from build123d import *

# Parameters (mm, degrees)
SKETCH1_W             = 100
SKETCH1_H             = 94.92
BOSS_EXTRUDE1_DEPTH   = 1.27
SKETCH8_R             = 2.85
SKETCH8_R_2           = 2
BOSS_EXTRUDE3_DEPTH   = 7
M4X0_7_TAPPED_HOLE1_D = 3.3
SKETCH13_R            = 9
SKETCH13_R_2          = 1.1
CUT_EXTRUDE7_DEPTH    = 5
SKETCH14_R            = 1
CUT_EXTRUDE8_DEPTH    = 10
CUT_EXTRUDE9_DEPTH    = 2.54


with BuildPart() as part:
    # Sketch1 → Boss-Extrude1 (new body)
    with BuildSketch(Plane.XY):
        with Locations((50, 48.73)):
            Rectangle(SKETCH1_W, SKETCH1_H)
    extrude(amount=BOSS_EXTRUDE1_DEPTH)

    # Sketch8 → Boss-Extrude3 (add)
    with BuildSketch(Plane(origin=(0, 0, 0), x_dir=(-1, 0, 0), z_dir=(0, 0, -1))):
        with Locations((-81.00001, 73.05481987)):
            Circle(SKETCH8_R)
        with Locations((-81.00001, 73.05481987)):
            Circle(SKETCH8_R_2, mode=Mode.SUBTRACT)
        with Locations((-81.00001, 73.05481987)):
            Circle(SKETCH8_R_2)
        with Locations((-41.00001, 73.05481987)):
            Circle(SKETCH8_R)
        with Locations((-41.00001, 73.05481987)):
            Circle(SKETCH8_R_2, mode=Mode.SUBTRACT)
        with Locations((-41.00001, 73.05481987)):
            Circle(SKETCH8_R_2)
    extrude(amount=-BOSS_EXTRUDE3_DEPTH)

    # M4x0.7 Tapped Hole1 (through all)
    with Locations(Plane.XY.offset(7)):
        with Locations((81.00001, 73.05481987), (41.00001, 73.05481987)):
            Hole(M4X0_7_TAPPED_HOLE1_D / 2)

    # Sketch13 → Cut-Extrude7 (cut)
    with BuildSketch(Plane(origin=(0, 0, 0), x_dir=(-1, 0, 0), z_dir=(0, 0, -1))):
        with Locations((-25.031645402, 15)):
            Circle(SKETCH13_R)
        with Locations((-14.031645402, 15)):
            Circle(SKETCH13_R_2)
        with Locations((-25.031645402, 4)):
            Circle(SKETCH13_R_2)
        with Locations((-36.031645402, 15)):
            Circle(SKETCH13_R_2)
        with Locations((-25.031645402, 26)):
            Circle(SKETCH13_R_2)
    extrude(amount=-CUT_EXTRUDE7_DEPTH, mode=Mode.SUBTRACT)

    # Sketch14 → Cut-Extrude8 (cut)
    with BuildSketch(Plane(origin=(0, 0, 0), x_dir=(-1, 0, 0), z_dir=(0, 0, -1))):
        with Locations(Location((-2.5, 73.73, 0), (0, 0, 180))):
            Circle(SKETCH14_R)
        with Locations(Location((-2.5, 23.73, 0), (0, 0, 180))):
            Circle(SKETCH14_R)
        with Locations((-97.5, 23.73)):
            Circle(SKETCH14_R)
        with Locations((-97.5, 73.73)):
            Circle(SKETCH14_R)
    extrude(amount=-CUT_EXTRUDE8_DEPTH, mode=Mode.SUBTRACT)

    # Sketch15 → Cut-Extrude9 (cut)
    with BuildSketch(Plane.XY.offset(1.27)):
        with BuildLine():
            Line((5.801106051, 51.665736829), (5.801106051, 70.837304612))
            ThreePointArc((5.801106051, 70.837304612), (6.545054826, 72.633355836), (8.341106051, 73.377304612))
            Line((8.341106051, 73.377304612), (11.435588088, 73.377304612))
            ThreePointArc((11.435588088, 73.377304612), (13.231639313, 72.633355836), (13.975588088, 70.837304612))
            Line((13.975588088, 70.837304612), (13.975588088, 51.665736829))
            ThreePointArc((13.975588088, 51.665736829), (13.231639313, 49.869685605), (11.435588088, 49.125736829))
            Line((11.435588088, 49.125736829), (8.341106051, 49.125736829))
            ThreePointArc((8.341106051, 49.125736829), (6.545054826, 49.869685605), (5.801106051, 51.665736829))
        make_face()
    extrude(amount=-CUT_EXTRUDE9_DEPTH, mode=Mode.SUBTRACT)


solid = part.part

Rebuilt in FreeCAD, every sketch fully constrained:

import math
import FreeCAD as App
import Part
import Sketcher
Q = App.Units.Quantity

doc = App.newDocument("Part")
body = doc.addObject("PartDesign::Body", "Body")

# Sketch on XY plane
sketch1 = body.newObject("Sketcher::SketchObject", "Sketch")
sketch1.AttachmentSupport = (doc.getObject("XY_Plane"), [""])
sketch1.MapMode = "FlatFace"
sketch1.addGeometry(Part.LineSegment(App.Vector(0, 96, 0), App.Vector(0, 1, 0)), False)
sketch1.addGeometry(Part.LineSegment(App.Vector(0, 1, 0), App.Vector(100, 1, 0)), False)
sketch1.addGeometry(Part.LineSegment(App.Vector(100, 1, 0), App.Vector(100, 96, 0)), False)
sketch1.addGeometry(Part.LineSegment(App.Vector(100, 96, 0), App.Vector(0, 96, 0)), False)
sketch1.addConstraint(Sketcher.Constraint("Coincident", 0, 2, 1, 1))
sketch1.addConstraint(Sketcher.Constraint("Coincident", 1, 2, 2, 1))
sketch1.addConstraint(Sketcher.Constraint("Coincident", 2, 2, 3, 1))
sketch1.addConstraint(Sketcher.Constraint("Coincident", 3, 2, 0, 1))
sketch1.addConstraint(Sketcher.Constraint("Vertical", 0))
sketch1.addConstraint(Sketcher.Constraint("Horizontal", 1))
sketch1.addConstraint(Sketcher.Constraint("Vertical", 2))
sketch1.addConstraint(Sketcher.Constraint("Horizontal", 3))
sketch1.addConstraint(Sketcher.Constraint("PointOnObject", 0, 2, -2))
sketch1.addConstraint(Sketcher.Constraint("DistanceX", 1, 1, 1, 2, Q("100 mm")))
sketch1.addConstraint(Sketcher.Constraint("DistanceY", 0, 2, 0, 1, Q("94.92 mm")))
sketch1.addConstraint(Sketcher.Constraint("DistanceY", -1, 1, 0, 2, Q("1.27 mm")))
pad1 = body.newObject("PartDesign::Pad", "Pad")
pad1.Profile = sketch1
pad1.Length = 1.27

# Sketch on XY plane
sketch2 = body.newObject("Sketcher::SketchObject", "Sketch001")
sketch2.AttachmentSupport = (doc.getObject("XY_Plane"), [""])
sketch2.MapMode = "FlatFace"
sketch2.addGeometry(Part.Circle(App.Vector(81, 73.1, 0), App.Vector(0, 0, 1), 2.9), False)
sketch2.addGeometry(Part.Circle(App.Vector(41, 73.1, 0), App.Vector(0, 0, 1), 2.9), False)
sketch2.addConstraint(Sketcher.Constraint("Equal", 0, 1))
sketch2.addConstraint(Sketcher.Constraint("Horizontal", 0, 3, 1, 3))
sketch2.addConstraint(Sketcher.Constraint("Diameter", 0, Q("5.7 mm")))
sketch2.addConstraint(Sketcher.Constraint("DistanceX", 1, 3, 0, 3, Q("40 mm")))
sketch2.addConstraint(Sketcher.Constraint("DistanceX", -1, 1, 0, 3, Q("81.00001 mm")))
sketch2.addConstraint(Sketcher.Constraint("DistanceY", -1, 1, 0, 3, Q("73.05482 mm")))
pad2 = body.newObject("PartDesign::Pad", "Pad001")
pad2.Profile = sketch2
pad2.Length = 7

# Sketch on XY plane
sketch3 = body.newObject("Sketcher::SketchObject", "Sketch002")
sketch3.AttachmentSupport = (doc.getObject("XY_Plane"), [""])
sketch3.MapMode = "FlatFace"
sketch3.AttachmentOffset = App.Placement(App.Vector(0, 0, 7), App.Rotation())
sketch3.addGeometry(Part.Circle(App.Vector(81, 73.1, 0), App.Vector(0, 0, 1), 1.6), False)
sketch3.addGeometry(Part.Circle(App.Vector(41, 73.1, 0), App.Vector(0, 0, 1), 1.6), False)
sketch3.addConstraint(Sketcher.Constraint("Equal", 0, 1))
sketch3.addConstraint(Sketcher.Constraint("Horizontal", 0, 3, 1, 3))
sketch3.addConstraint(Sketcher.Constraint("Diameter", 0, Q("3.3 mm")))
sketch3.addConstraint(Sketcher.Constraint("DistanceX", 1, 3, 0, 3, Q("40 mm")))
sketch3.addConstraint(Sketcher.Constraint("DistanceX", -1, 1, 0, 3, Q("81.00001 mm")))
sketch3.addConstraint(Sketcher.Constraint("DistanceY", -1, 1, 0, 3, Q("73.05482 mm")))
doc.recompute()
hole = body.newObject("PartDesign::Hole", "Hole")
hole.Profile = sketch3
hole.ThreadType = "None"
hole.Diameter = 3.3
hole.DepthType = "ThroughAll"

# Sketch on XY plane
sketch4 = body.newObject("Sketcher::SketchObject", "Sketch003")
sketch4.AttachmentSupport = (doc.getObject("XY_Plane"), [""])
sketch4.MapMode = "FlatFace"
sketch4.addGeometry(Part.Circle(App.Vector(25, 15, 0), App.Vector(0, 0, 1), 9), False)
sketch4.addGeometry(Part.Circle(App.Vector(14, 15, 0), App.Vector(0, 0, 1), 1.1), False)
sketch4.addGeometry(Part.Circle(App.Vector(25, 4, 0), App.Vector(0, 0, 1), 1.1), False)
sketch4.addGeometry(Part.Circle(App.Vector(36, 15, 0), App.Vector(0, 0, 1), 1.1), False)
sketch4.addGeometry(Part.Circle(App.Vector(25, 26, 0), App.Vector(0, 0, 1), 1.1), False)
sketch4.addConstraint(Sketcher.Constraint("Equal", 1, 2))
sketch4.addConstraint(Sketcher.Constraint("Equal", 2, 3))
sketch4.addConstraint(Sketcher.Constraint("Equal", 3, 4))
sketch4.addConstraint(Sketcher.Constraint("Horizontal", 0, 3, 1, 3))
sketch4.addConstraint(Sketcher.Constraint("Horizontal", 1, 3, 3, 3))
sketch4.addConstraint(Sketcher.Constraint("Vertical", 0, 3, 2, 3))
sketch4.addConstraint(Sketcher.Constraint("Vertical", 2, 3, 4, 3))
sketch4.addConstraint(Sketcher.Constraint("Diameter", 0, Q("18 mm")))
sketch4.addConstraint(Sketcher.Constraint("Diameter", 1, Q("2.2 mm")))
sketch4.addConstraint(Sketcher.Constraint("DistanceY", -1, 1, 0, 3, Q("15 mm")))
sketch4.addConstraint(Sketcher.Constraint("DistanceY", -1, 1, 2, 3, Q("4 mm")))
sketch4.addConstraint(Sketcher.Constraint("DistanceY", -1, 1, 4, 3, Q("26 mm")))
sketch4.addConstraint(Sketcher.Constraint("DistanceX", 1, 3, 0, 3, Q("11 mm")))
sketch4.addConstraint(Sketcher.Constraint("DistanceX", 0, 3, 3, 3, Q("11 mm")))
sketch4.addConstraint(Sketcher.Constraint("DistanceX", -1, 1, 0, 3, Q("25.031645 mm")))
pocket1 = body.newObject("PartDesign::Pocket", "Pocket")
pocket1.Profile = sketch4
pocket1.Length = 5
pocket1.Reversed = True

# Sketch on XY plane
sketch5 = body.newObject("Sketcher::SketchObject", "Sketch004")
sketch5.AttachmentSupport = (doc.getObject("XY_Plane"), [""])
sketch5.MapMode = "FlatFace"
sketch5.addGeometry(Part.Circle(App.Vector(2.5, 73.7, 0), App.Vector(0, 0, 1), 1), False)
sketch5.addGeometry(Part.Circle(App.Vector(2.5, 23.7, 0), App.Vector(0, 0, 1), 1), False)
sketch5.addGeometry(Part.Circle(App.Vector(97.5, 23.7, 0), App.Vector(0, 0, 1), 1), False)
sketch5.addGeometry(Part.Circle(App.Vector(97.5, 73.7, 0), App.Vector(0, 0, 1), 1), False)
sketch5.addConstraint(Sketcher.Constraint("Equal", 0, 1))
sketch5.addConstraint(Sketcher.Constraint("Equal", 1, 2))
sketch5.addConstraint(Sketcher.Constraint("Equal", 2, 3))
sketch5.addConstraint(Sketcher.Constraint("Horizontal", 1, 3, 2, 3))
sketch5.addConstraint(Sketcher.Constraint("Horizontal", 0, 3, 3, 3))
sketch5.addConstraint(Sketcher.Constraint("Vertical", 0, 3, 1, 3))
sketch5.addConstraint(Sketcher.Constraint("Vertical", 2, 3, 3, 3))
sketch5.addConstraint(Sketcher.Constraint("Diameter", 0, Q("2 mm")))
sketch5.addConstraint(Sketcher.Constraint("DistanceY", 1, 3, 0, 3, Q("50 mm")))
sketch5.addConstraint(Sketcher.Constraint("DistanceX", 1, 3, 2, 3, Q("95 mm")))
sketch5.addConstraint(Sketcher.Constraint("DistanceX", -1, 1, 0, 3, Q("2.5 mm")))
sketch5.addConstraint(Sketcher.Constraint("DistanceY", -1, 1, 0, 3, Q("73.73 mm")))
pocket2 = body.newObject("PartDesign::Pocket", "Pocket001")
pocket2.Profile = sketch5
pocket2.Length = 10
pocket2.Reversed = True

# Sketch on XY plane
sketch6 = body.newObject("Sketcher::SketchObject", "Sketch005")
sketch6.AttachmentSupport = (doc.getObject("XY_Plane"), [""])
sketch6.MapMode = "FlatFace"
sketch6.AttachmentOffset = App.Placement(App.Vector(0, 0, 1.27), App.Rotation())
sketch6.addGeometry(Part.LineSegment(App.Vector(5.8, 70.8, 0), App.Vector(5.8, 51.7, 0)), False)
sketch6.addGeometry(Part.ArcOfCircle(Part.Circle(App.Vector(8.3, 51.7, 0), App.Vector(0, 0, 1), 2.5), math.radians(180), math.radians(270)), False)
sketch6.addGeometry(Part.LineSegment(App.Vector(8.3, 49.1, 0), App.Vector(11.4, 49.1, 0)), False)
sketch6.addGeometry(Part.ArcOfCircle(Part.Circle(App.Vector(11.4, 51.7, 0), App.Vector(0, 0, 1), 2.5), math.radians(-90), math.radians(0)), False)
sketch6.addGeometry(Part.LineSegment(App.Vector(14, 51.7, 0), App.Vector(14, 70.8, 0)), False)
sketch6.addGeometry(Part.ArcOfCircle(Part.Circle(App.Vector(11.4, 70.8, 0), App.Vector(0, 0, 1), 2.5), math.radians(0), math.radians(90)), False)
sketch6.addGeometry(Part.LineSegment(App.Vector(11.4, 73.4, 0), App.Vector(8.3, 73.4, 0)), False)
sketch6.addGeometry(Part.ArcOfCircle(Part.Circle(App.Vector(8.3, 70.8, 0), App.Vector(0, 0, 1), 2.5), math.radians(90), math.radians(180)), False)
sketch6.addConstraint(Sketcher.Constraint("Tangent", 0, 2, 1, 1))
sketch6.addConstraint(Sketcher.Constraint("Tangent", 1, 2, 2, 1))
sketch6.addConstraint(Sketcher.Constraint("Tangent", 2, 2, 3, 1))
sketch6.addConstraint(Sketcher.Constraint("Tangent", 3, 2, 4, 1))
sketch6.addConstraint(Sketcher.Constraint("Tangent", 4, 2, 5, 1))
sketch6.addConstraint(Sketcher.Constraint("Tangent", 5, 2, 6, 1))
sketch6.addConstraint(Sketcher.Constraint("Tangent", 6, 2, 7, 1))
sketch6.addConstraint(Sketcher.Constraint("Tangent", 7, 2, 0, 1))
sketch6.addConstraint(Sketcher.Constraint("Vertical", 0))
sketch6.addConstraint(Sketcher.Constraint("Horizontal", 2))
sketch6.addConstraint(Sketcher.Constraint("Vertical", 4))
sketch6.addConstraint(Sketcher.Constraint("Horizontal", 6))
sketch6.addConstraint(Sketcher.Constraint("Equal", 1, 3))
sketch6.addConstraint(Sketcher.Constraint("Equal", 3, 5))
sketch6.addConstraint(Sketcher.Constraint("Equal", 5, 7))
sketch6.addConstraint(Sketcher.Constraint("Radius", 1, Q("2.54 mm")))
sketch6.addConstraint(Sketcher.Constraint("DistanceX", 2, 1, 2, 2, Q("3.094482 mm")))
sketch6.addConstraint(Sketcher.Constraint("DistanceY", 0, 2, 0, 1, Q("19.171568 mm")))
sketch6.addConstraint(Sketcher.Constraint("DistanceX", -1, 1, 3, 3, Q("11.435588 mm")))
sketch6.addConstraint(Sketcher.Constraint("DistanceY", -1, 1, 1, 3, Q("51.665737 mm")))
pocket3 = body.newObject("PartDesign::Pocket", "Pocket002")
pocket3.Profile = sketch6
pocket3.Length = 2.54

doc.recompute()
